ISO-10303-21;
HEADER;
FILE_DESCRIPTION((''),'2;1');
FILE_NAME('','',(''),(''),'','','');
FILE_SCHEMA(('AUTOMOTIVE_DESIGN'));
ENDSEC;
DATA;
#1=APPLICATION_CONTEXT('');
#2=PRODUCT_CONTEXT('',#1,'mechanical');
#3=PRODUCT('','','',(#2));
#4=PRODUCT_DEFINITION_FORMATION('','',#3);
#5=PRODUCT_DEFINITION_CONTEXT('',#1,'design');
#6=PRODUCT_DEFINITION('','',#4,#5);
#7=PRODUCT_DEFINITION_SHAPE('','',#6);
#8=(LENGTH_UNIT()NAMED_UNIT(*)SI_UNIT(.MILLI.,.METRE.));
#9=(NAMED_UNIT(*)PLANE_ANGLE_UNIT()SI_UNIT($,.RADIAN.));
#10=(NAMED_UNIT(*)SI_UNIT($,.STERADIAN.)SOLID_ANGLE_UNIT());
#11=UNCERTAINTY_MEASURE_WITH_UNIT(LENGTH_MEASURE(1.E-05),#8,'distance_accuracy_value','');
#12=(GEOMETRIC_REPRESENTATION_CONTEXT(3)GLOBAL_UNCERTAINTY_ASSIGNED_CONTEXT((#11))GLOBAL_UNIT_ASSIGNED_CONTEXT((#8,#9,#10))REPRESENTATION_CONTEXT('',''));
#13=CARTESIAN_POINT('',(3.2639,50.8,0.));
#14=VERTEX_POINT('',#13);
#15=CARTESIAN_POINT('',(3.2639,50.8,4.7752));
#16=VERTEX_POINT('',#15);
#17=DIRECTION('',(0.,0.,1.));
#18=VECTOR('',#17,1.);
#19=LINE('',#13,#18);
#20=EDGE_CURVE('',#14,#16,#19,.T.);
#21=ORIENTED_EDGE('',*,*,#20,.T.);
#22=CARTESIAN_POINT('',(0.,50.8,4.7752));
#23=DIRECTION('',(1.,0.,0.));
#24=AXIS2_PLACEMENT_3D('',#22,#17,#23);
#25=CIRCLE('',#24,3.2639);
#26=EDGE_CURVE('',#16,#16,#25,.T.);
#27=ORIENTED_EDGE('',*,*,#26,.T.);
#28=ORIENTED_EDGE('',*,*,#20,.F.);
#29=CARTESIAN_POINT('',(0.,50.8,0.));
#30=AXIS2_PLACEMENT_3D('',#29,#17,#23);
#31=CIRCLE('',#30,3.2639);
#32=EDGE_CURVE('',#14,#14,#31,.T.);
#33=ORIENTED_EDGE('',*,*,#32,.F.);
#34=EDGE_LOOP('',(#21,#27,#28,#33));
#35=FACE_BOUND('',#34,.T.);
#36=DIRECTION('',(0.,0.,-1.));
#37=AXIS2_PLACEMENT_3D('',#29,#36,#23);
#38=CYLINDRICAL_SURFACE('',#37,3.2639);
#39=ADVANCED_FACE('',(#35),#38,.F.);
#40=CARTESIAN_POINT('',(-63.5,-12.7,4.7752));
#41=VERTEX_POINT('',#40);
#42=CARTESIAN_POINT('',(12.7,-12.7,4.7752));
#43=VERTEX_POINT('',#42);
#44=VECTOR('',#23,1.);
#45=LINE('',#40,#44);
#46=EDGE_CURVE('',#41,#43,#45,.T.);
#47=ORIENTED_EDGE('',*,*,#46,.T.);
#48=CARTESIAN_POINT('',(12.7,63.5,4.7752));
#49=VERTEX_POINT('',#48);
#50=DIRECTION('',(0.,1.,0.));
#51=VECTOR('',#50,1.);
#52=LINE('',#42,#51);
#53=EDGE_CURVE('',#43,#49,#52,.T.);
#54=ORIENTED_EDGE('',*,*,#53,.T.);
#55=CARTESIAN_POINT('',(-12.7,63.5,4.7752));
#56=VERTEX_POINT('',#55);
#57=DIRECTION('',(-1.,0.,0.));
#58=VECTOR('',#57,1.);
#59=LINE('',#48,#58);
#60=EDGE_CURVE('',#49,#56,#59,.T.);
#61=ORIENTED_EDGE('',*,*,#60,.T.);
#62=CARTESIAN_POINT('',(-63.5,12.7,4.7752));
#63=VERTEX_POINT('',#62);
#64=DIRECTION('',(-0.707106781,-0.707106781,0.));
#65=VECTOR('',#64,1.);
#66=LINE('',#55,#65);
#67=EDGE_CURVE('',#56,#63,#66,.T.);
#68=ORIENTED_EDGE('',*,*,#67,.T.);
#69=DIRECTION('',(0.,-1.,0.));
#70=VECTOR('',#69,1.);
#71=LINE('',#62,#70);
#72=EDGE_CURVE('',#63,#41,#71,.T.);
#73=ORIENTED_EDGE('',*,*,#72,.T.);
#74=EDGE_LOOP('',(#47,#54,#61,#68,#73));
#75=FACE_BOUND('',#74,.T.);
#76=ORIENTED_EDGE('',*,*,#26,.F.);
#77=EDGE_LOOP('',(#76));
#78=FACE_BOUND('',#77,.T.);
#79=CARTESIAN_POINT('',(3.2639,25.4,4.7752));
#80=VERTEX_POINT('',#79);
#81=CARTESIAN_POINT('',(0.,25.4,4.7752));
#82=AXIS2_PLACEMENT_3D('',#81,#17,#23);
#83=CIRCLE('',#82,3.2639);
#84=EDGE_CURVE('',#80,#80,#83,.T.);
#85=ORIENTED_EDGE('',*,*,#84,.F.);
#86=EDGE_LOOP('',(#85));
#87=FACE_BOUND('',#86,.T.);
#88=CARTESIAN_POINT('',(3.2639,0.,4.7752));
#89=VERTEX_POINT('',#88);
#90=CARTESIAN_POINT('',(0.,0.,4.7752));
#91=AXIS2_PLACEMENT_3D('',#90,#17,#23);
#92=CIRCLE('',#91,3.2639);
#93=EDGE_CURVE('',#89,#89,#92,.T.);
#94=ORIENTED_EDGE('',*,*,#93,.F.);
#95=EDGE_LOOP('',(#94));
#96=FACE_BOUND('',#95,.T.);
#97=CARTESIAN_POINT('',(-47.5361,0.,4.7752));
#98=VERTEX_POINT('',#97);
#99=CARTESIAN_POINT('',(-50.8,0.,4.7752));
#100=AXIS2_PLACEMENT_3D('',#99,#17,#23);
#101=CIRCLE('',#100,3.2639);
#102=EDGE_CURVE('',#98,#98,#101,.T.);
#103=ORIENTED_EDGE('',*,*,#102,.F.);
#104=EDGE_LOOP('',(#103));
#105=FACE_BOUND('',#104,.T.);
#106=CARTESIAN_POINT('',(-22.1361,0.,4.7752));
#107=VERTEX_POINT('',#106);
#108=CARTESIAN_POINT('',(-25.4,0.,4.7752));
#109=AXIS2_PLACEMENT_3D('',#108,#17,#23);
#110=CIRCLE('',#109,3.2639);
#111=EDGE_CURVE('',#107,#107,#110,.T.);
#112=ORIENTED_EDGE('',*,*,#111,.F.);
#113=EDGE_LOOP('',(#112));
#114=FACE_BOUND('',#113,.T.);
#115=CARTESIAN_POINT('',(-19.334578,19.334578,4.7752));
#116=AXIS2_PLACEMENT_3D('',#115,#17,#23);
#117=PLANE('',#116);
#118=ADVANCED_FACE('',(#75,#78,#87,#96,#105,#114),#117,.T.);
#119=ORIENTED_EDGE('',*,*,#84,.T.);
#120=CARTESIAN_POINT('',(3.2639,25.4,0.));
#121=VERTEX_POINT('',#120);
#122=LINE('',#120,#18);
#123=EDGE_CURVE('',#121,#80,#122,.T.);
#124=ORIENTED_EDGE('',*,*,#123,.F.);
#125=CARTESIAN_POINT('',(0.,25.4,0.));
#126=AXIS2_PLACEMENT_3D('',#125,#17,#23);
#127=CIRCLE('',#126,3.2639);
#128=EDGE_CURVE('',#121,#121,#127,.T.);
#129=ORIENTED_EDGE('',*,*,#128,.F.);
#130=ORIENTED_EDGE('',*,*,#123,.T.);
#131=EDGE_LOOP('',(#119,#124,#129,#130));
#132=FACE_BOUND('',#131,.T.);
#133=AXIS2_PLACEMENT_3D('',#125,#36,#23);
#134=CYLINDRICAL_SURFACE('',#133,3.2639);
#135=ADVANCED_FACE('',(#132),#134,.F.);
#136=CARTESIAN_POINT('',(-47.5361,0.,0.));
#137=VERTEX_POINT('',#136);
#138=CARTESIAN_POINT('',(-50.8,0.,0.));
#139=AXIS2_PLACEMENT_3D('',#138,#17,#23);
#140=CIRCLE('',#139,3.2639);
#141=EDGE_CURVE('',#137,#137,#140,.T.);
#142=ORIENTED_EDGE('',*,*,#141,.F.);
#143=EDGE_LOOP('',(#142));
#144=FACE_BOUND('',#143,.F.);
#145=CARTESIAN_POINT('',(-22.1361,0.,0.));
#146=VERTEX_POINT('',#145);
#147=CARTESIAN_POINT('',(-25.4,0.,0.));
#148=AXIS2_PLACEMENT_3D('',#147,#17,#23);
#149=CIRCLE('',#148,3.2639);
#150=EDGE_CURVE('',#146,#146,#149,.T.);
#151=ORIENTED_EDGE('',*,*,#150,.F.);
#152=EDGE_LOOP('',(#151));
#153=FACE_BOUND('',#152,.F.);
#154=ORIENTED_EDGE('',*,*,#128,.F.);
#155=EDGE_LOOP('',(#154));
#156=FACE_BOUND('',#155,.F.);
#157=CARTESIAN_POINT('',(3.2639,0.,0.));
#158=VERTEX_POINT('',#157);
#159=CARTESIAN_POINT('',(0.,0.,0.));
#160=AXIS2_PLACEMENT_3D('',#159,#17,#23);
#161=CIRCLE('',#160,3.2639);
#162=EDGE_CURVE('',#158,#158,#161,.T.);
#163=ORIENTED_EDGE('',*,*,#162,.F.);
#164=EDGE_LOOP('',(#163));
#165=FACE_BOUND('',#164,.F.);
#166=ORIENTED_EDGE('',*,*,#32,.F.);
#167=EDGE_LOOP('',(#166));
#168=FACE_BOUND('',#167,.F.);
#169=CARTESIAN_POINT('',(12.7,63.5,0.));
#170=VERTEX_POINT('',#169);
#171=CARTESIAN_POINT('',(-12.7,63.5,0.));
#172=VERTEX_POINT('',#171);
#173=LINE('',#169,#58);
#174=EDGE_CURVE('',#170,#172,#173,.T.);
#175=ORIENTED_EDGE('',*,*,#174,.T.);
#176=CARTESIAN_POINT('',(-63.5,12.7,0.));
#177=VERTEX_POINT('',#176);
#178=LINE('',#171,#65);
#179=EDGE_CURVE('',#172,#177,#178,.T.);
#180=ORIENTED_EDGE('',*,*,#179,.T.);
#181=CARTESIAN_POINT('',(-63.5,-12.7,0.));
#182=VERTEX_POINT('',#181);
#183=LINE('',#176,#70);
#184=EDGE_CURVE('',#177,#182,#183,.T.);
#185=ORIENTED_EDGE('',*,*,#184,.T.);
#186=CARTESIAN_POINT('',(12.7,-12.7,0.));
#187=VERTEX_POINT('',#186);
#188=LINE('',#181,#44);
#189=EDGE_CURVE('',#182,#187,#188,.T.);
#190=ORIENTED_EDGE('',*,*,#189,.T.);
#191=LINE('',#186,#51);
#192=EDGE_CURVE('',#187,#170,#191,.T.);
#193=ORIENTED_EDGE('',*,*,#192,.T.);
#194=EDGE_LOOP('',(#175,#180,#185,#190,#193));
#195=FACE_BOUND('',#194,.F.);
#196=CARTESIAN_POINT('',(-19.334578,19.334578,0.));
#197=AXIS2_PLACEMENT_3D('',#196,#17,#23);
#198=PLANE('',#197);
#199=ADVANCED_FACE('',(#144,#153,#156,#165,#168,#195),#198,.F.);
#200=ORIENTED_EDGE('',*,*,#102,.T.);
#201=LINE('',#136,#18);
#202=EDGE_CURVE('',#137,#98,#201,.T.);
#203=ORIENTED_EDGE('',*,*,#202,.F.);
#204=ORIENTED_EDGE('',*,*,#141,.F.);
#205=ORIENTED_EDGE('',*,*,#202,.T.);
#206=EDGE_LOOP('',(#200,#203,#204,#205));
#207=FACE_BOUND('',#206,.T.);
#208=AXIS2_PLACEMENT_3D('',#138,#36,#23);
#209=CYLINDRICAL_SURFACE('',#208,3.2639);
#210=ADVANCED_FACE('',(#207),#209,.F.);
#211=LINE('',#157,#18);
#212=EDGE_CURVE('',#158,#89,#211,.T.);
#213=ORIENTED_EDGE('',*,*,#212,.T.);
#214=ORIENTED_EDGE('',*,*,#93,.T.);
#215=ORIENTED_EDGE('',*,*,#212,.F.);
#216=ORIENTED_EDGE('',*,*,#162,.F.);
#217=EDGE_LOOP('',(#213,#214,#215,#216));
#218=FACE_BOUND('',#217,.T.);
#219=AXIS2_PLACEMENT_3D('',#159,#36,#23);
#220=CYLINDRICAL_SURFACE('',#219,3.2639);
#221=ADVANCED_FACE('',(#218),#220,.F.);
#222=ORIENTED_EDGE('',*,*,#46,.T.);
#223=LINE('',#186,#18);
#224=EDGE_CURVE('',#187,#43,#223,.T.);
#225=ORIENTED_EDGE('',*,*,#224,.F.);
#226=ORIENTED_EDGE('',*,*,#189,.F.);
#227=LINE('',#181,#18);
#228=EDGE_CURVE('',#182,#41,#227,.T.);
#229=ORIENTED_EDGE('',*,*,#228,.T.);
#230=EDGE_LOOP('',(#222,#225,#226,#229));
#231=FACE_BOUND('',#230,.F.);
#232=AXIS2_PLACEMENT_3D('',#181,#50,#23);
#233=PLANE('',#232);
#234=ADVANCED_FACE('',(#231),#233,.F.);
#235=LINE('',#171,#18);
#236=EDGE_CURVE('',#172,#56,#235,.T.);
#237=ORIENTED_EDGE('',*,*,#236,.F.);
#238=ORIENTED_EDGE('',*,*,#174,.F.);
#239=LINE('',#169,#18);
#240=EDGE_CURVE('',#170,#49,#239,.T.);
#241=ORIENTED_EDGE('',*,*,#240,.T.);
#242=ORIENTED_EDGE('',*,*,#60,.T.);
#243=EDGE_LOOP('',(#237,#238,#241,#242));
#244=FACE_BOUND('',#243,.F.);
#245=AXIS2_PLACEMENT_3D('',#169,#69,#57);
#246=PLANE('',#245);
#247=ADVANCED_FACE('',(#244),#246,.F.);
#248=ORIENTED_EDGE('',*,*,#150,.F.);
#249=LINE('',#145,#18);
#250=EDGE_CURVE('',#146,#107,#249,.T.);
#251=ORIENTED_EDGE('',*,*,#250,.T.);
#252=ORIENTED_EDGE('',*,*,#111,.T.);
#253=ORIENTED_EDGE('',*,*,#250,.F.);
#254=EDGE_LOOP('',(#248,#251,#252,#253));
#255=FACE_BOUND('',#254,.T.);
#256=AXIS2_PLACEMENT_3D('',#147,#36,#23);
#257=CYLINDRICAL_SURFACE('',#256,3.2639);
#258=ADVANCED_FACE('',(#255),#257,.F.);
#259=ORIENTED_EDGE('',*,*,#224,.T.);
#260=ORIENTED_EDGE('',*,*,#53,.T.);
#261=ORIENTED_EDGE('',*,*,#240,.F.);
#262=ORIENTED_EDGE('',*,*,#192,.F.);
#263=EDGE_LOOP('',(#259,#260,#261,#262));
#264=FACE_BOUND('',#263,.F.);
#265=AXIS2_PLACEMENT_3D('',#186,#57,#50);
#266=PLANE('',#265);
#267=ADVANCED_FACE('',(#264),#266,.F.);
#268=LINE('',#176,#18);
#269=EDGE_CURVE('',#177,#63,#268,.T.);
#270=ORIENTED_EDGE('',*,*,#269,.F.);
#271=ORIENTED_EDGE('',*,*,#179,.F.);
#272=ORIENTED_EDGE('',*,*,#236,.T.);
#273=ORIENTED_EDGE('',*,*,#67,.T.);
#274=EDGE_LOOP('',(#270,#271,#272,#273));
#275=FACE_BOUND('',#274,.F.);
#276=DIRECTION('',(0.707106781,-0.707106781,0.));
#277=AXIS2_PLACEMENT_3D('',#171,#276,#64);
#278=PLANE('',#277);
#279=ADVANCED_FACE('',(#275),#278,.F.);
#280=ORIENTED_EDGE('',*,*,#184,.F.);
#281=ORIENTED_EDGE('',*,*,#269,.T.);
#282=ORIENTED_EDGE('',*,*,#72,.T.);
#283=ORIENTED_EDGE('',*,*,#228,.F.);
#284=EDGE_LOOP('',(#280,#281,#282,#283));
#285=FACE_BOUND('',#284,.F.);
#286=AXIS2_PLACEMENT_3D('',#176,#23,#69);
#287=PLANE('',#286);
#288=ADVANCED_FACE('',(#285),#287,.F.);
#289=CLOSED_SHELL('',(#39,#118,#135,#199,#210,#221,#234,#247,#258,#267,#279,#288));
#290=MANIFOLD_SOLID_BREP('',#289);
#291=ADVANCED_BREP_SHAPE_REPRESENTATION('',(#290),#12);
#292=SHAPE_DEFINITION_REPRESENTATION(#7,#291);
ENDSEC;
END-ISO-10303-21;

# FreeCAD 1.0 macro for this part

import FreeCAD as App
import Part
import Sketcher
Q = App.Units.Quantity

doc = App.newDocument("Part")
params = doc.addObject("Spreadsheet::Sheet", "Params")
for row, (alias, value) in enumerate([
    ("sketch1_width", "3 in"),
    ("sketch1_width2", "1 in"),
    ("sketch1_diameter", "0.257 in"),
    ("pad1_length", "0.188 in"),
], start=1):
    params.set(f"A{row}", alias)
    params.set(f"B{row}", "=" + value)
    params.setAlias(f"B{row}", alias)

body = doc.addObject("PartDesign::Body", "Body")

sketch1 = doc.addObject("Sketcher::SketchObject", "Sketch")
body.addObject(sketch1)
sketch1.AttachmentSupport = (doc.XY_Plane, [""])
sketch1.MapMode = "FlatFace"
sketch1.addGeometry([
    Part.LineSegment(App.Vector(-63.5, -12.7, 0), App.Vector(12.7, -12.7, 0)),
    Part.LineSegment(App.Vector(12.7, -12.7, 0), App.Vector(12.7, 63.5, 0)),
    Part.LineSegment(App.Vector(12.7, 63.5, 0), App.Vector(-12.7, 63.5, 0)),
    Part.LineSegment(App.Vector(-12.7, 63.5, 0), App.Vector(-63.5, 12.7, 0)),
    Part.LineSegment(App.Vector(-63.5, 12.7, 0), App.Vector(-63.5, -12.7, 0)),
    Part.Circle(App.Vector(-50.8, 0, 0), App.Vector(0, 0, 1), 3.3),
    Part.Circle(App.Vector(-25.4, 0, 0), App.Vector(0, 0, 1), 3.3),
    Part.Circle(App.Vector(0, 0, 0), App.Vector(0, 0, 1), 3.3),
    Part.Circle(App.Vector(0, 25.4, 0), App.Vector(0, 0, 1), 3.3),
    Part.Circle(App.Vector(0, 50.8, 0), App.Vector(0, 0, 1), 3.3),
], False)
sketch1.addConstraint([
    Sketcher.Constraint("Coincident", 0, 2, 1, 1),
    Sketcher.Constraint("Coincident", 1, 2, 2, 1),
    Sketcher.Constraint("Coincident", 2, 2, 3, 1),
    Sketcher.Constraint("Coincident", 3, 2, 4, 1),
    Sketcher.Constraint("Coincident", 4, 2, 0, 1),
    Sketcher.Constraint("Horizontal", 0),
    Sketcher.Constraint("Vertical", 1),
    Sketcher.Constraint("Horizontal", 2),
    Sketcher.Constraint("Vertical", 4),
    Sketcher.Constraint("Coincident", 7, 3, -1, 1),
    Sketcher.Constraint("Equal", 5, 6),
    Sketcher.Constraint("Equal", 6, 7),
    Sketcher.Constraint("Equal", 7, 8),
    Sketcher.Constraint("Equal", 8, 9),
    Sketcher.Constraint("PointOnObject", 5, 3, -1),
    Sketcher.Constraint("PointOnObject", 6, 3, -1),
    Sketcher.Constraint("PointOnObject", 8, 3, -2),
    Sketcher.Constraint("PointOnObject", 9, 3, -2),
    Sketcher.Constraint("Equal", 0, 1),
    Sketcher.Constraint("Equal", 2, 4),
    Sketcher.Constraint("DistanceX", 0, 1, 0, 2, Q("3 in")),
    Sketcher.Constraint("DistanceX", 2, 2, 2, 1, Q("1 in")),
    Sketcher.Constraint("Diameter", 5, Q("0.257 in")),
    Sketcher.Constraint("DistanceX", 5, 3, -1, 1, Q("2 in")),
    Sketcher.Constraint("DistanceX", 6, 3, -1, 1, Q("1 in")),
    Sketcher.Constraint("DistanceY", -1, 1, 8, 3, Q("1 in")),
    Sketcher.Constraint("DistanceY", -1, 1, 9, 3, Q("2 in")),
    Sketcher.Constraint("DistanceX", -1, 1, 0, 2, Q("0.5 in")),
    Sketcher.Constraint("DistanceY", 0, 2, -1, 1, Q("0.5 in")),
])
sketch1.setExpression("Constraints[20]", "Params.sketch1_width")
sketch1.setExpression("Constraints[21]", "Params.sketch1_width2")
sketch1.setExpression("Constraints[22]", "Params.sketch1_diameter")
pad1 = doc.addObject("PartDesign::Pad", "Pad")
body.addObject(pad1)
pad1.Profile = sketch1
pad1.setExpression("Length", "Params.pad1_length")

doc.recompute()
